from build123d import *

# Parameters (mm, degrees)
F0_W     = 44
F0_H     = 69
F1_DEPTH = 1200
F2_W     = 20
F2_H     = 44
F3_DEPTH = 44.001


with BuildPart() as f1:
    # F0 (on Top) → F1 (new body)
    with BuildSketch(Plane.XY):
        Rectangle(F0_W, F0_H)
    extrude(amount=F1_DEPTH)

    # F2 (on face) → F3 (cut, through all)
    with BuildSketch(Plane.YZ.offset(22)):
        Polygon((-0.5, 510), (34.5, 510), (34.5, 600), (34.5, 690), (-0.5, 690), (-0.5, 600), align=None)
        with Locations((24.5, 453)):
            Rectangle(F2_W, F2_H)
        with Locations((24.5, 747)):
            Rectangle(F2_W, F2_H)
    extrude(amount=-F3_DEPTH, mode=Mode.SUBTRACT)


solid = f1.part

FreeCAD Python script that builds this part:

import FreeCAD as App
import Part
import Sketcher

V = App.Vector


def add_polygon(sketch, points):
    """Adds a closed chain of lines whose ends are joined by coincident constraints."""
    first, n = sketch.GeometryCount, len(points)
    for a, b in zip(points, points[1:] + points[:1]):
        sketch.addGeometry(Part.LineSegment(App.Vector(*a, 0), App.Vector(*b, 0)), False)
    for i in range(n):
        sketch.addConstraint(Sketcher.Constraint("Coincident", first + i, 2, first + (i + 1) % n, 1))

doc = App.newDocument("Part")
body = doc.addObject("PartDesign::Body", "Body")

# Sketch on XY plane
sketch1 = body.newObject("Sketcher::SketchObject", "Sketch")
sketch1.AttachmentSupport = (doc.getObject("XY_Plane"), [""])
sketch1.MapMode = "FlatFace"
add_polygon(sketch1, [(-22, 34), (-22, -34), (22, -34), (22, 34)])  # lines 0-3
sketch1.addConstraint([
    Sketcher.Constraint("Vertical", 0),
    Sketcher.Constraint("Horizontal", 1),
    Sketcher.Constraint("Vertical", 2),
    Sketcher.Constraint("Horizontal", 3),
    Sketcher.Constraint("Symmetric", 0, 2, 2, 2, -1, 1),
    Sketcher.Constraint("DistanceX", 1, 1, 1, 2, 44.0),
    Sketcher.Constraint("DistanceY", 0, 2, 0, 1, 69.0),
])
pad1 = body.newObject("PartDesign::Pad", "Pad")
pad1.Profile = sketch1
pad1.Length = 1200

# Sketch on YZ plane
sketch2 = body.newObject("Sketcher::SketchObject", "Sketch001")
sketch2.AttachmentSupport = (doc.getObject("YZ_Plane"), [""])
sketch2.MapMode = "FlatFace"
sketch2.AttachmentOffset = App.Placement(V(0, 0, 22), App.Rotation())
add_polygon(sketch2, [(0, 510), (34, 510), (34, 690), (0, 690)])  # lines 0-3
add_polygon(sketch2, [(14, 475), (14, 431), (34, 431), (34, 475)])  # lines 4-7
add_polygon(sketch2, [(14, 769), (14, 725), (34, 725), (34, 769)])  # lines 8-11
sketch2.addConstraint([
    Sketcher.Constraint("Horizontal", 0),
    Sketcher.Constraint("Vertical", 1),
    Sketcher.Constraint("Horizontal", 2),
    Sketcher.Constraint("Vertical", 3),
    Sketcher.Constraint("Vertical", 4),
    Sketcher.Constraint("Horizontal", 5),
    Sketcher.Constraint("Vertical", 6),
    Sketcher.Constraint("Horizontal", 7),
    Sketcher.Constraint("Vertical", 8),
    Sketcher.Constraint("Horizontal", 9),
    Sketcher.Constraint("Vertical", 10),
    Sketcher.Constraint("Horizontal", 11),
    Sketcher.Constraint("Vertical", 1, 2, 5, 2),
    Sketcher.Constraint("Vertical", 7, 2, 8, 2),
    Sketcher.Constraint("Vertical", 6, 2, 9, 2),
    Sketcher.Constraint("Equal", 6, 8),
    Sketcher.Constraint("DistanceX", 0, 1, 0, 2, 35.0),
    Sketcher.Constraint("DistanceX", 5, 1, 5, 2, 20.0),
    Sketcher.Constraint("DistanceY", 1, 1, 1, 2, 180.0),
    Sketcher.Constraint("DistanceY", 4, 2, 4, 1, 44.0),
    Sketcher.Constraint("DistanceY", -1, 1, 0, 2, 510.0),
    Sketcher.Constraint("DistanceY", -1, 1, 4, 2, 431.0),
    Sketcher.Constraint("DistanceY", -1, 1, 8, 2, 725.0),
    Sketcher.Constraint("DistanceX", -1, 1, 0, 2, 34.5),
])
pocket1 = body.newObject("PartDesign::Pocket", "Pocket")
pocket1.Profile = sketch2
pocket1.Type = "ThroughAll"

doc.recompute()
